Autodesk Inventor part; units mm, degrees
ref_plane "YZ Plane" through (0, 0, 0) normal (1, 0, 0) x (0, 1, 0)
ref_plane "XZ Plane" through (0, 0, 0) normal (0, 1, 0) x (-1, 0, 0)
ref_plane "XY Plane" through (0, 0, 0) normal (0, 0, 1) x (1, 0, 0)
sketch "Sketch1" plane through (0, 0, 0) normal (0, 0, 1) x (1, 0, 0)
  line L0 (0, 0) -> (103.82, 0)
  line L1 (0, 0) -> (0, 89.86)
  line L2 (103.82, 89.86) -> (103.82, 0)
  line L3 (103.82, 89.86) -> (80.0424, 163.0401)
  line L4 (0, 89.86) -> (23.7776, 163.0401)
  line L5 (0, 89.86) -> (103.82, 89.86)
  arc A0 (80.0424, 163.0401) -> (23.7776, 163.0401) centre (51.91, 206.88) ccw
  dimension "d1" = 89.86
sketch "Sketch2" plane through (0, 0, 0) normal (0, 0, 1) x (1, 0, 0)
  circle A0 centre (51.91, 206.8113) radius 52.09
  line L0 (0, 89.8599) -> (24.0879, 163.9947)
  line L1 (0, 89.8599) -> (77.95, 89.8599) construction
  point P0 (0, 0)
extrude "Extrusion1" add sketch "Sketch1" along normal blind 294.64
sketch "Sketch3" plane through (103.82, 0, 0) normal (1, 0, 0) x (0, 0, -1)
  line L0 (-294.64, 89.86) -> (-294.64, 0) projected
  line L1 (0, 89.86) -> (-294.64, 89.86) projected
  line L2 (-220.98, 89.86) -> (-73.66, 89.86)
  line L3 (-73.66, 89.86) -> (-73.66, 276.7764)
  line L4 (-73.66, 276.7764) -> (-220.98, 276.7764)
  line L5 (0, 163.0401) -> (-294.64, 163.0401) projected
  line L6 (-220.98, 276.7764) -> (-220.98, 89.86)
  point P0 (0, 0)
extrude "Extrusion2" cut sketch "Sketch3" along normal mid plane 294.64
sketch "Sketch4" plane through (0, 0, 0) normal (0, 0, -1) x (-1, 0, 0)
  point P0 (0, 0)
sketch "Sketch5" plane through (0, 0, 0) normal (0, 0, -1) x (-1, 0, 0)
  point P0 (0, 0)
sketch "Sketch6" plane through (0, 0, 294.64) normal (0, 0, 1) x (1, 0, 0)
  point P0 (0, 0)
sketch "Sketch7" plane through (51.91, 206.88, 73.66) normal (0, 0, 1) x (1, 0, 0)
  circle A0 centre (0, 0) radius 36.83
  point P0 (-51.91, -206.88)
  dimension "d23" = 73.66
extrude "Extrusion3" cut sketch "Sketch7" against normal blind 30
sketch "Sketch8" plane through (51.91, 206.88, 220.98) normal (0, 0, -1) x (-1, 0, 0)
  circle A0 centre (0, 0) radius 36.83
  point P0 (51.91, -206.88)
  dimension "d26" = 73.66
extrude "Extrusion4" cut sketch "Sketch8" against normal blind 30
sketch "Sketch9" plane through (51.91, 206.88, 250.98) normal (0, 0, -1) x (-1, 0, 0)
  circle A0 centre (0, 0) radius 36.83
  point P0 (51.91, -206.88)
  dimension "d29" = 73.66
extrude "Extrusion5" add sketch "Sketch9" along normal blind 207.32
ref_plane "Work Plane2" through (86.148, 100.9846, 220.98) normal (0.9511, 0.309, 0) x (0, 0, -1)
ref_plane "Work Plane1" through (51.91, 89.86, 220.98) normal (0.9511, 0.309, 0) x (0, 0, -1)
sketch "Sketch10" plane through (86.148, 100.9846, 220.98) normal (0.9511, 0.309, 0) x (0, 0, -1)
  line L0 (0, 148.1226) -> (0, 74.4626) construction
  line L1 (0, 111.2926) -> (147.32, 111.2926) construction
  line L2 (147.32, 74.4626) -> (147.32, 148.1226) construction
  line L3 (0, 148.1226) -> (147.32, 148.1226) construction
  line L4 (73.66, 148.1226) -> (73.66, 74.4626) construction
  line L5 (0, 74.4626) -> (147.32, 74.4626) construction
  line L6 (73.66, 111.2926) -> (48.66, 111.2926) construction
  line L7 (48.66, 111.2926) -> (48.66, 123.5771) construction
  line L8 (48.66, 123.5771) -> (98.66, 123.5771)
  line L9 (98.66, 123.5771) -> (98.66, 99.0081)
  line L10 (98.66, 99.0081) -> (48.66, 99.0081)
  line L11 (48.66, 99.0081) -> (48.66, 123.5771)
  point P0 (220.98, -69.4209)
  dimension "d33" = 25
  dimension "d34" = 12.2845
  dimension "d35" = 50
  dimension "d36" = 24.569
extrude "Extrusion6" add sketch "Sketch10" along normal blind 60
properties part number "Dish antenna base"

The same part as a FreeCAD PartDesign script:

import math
import FreeCAD as App
import Part
import Sketcher
from FreeCAD import Vector
Q = App.Units.Quantity


def add_polygon(sketch, points):
    """Adds a closed chain of lines whose ends are joined by coincident constraints."""
    first, n = sketch.GeometryCount, len(points)
    for a, b in zip(points, points[1:] + points[:1]):
        sketch.addGeometry(Part.LineSegment(App.Vector(*a, 0), App.Vector(*b, 0)), False)
    for i in range(n):
        sketch.addConstraint(Sketcher.Constraint("Coincident", first + i, 2, first + (i + 1) % n, 1))

doc = App.newDocument("Part")
body = doc.addObject("PartDesign::Body", "Body")

# Sketch on XY plane
sketch1 = body.newObject("Sketcher::SketchObject", "Sketch")
sketch1.AttachmentSupport = (doc.getObject("XY_Plane"), [""])
sketch1.MapMode = "FlatFace"
sketch1.addGeometry([
    Part.LineSegment(Vector(0, 90, 0), Vector(0, 0, 0)),  # 0
    Part.LineSegment(Vector(0, 0, 0), Vector(104, 0, 0)),  # 1
    Part.LineSegment(Vector(104, 0, 0), Vector(104, 90, 0)),  # 2
    Part.LineSegment(Vector(104, 90, 0), Vector(80, 163, 0)),  # 3
    Part.ArcOfCircle(Part.Circle(Vector(52, 207, 0), Vector(0, 0, 1), 52), math.radians(-57), math.radians(237)),  # 4
    Part.LineSegment(Vector(24, 163, 0), Vector(0, 90, 0)),  # 5
], False)
sketch1.addConstraint([
    Sketcher.Constraint("Coincident", 0, 2, 1, 1),
    Sketcher.Constraint("Coincident", 1, 2, 2, 1),
    Sketcher.Constraint("Coincident", 2, 2, 3, 1),
    Sketcher.Constraint("Coincident", 3, 2, 4, 1),
    Sketcher.Constraint("Coincident", 4, 2, 5, 1),
    Sketcher.Constraint("Coincident", 5, 2, 0, 1),
    Sketcher.Constraint("Vertical", 0),
    Sketcher.Constraint("Horizontal", 1),
    Sketcher.Constraint("Vertical", 2),
    Sketcher.Constraint("Coincident", 0, 2, -1, 1),
    Sketcher.Constraint("Horizontal", 3, 2, 4, 2),
    Sketcher.Constraint("Horizontal", 2, 2, 5, 2),
    Sketcher.Constraint("Equal", 3, 5),
    Sketcher.Constraint("DistanceY", 0, 2, 0, 1, Q("3.5378 in")),
    Sketcher.Constraint("Angle", 3, Q("108 deg")),
    Sketcher.Constraint("Radius", 4, 52.09),
    Sketcher.Constraint("DistanceX", 1, 1, 1, 2, Q("4.0874 in")),
    Sketcher.Constraint("DistanceY", -1, 1, 3, 2, Q("6.4189 in")),
])
pad1 = body.newObject("PartDesign::Pad", "Pad")
pad1.Profile = sketch1
pad1.Length = Q("11.6 in")

# Sketch on YZ plane
sketch2 = body.newObject("Sketcher::SketchObject", "Sketch001")
sketch2.AttachmentSupport = (doc.getObject("YZ_Plane"), [""])
sketch2.MapMode = "FlatFace"
sketch2.AttachmentOffset = App.Placement(Vector(0, 0, 4.0874016 * 25.4), App.Rotation())
add_polygon(sketch2, [(90, 221), (90, 74), (277, 74), (277, 221)])  # lines 0-3
sketch2.addConstraint([
    Sketcher.Constraint("Vertical", 0),
    Sketcher.Constraint("Horizontal", 1),
    Sketcher.Constraint("Vertical", 2),
    Sketcher.Constraint("Horizontal", 3),
    Sketcher.Constraint("DistanceY", 0, 2, 0, 1, Q("5.8 in")),
    Sketcher.Constraint("DistanceY", -1, 1, 0, 2, Q("2.9 in")),
    Sketcher.Constraint("DistanceX", 1, 1, 1, 2, 186.9164),
    Sketcher.Constraint("DistanceX", -1, 1, 0, 2, Q("3.5378 in")),
])
pocket1 = body.newObject("PartDesign::Pocket", "Pocket")
pocket1.Profile = sketch2
pocket1.Length = Q("11.6 in")
pocket1.Midplane = True

# Sketch on XY plane
sketch3 = body.newObject("Sketcher::SketchObject", "Sketch002")
sketch3.AttachmentSupport = (doc.getObject("XY_Plane"), [""])
sketch3.MapMode = "FlatFace"
sketch3.AttachmentOffset = App.Placement(Vector(0, 0, 2.9 * 25.4), App.Rotation())
sketch3.addGeometry(Part.Circle(Vector(52, 207, 0), Vector(0, 0, 1), 37), False)
sketch3.addConstraint([
    Sketcher.Constraint("Diameter", 0, Q("2.9 in")),
    Sketcher.Constraint("DistanceX", -1, 1, 0, 3, Q("2.0437 in")),
    Sketcher.Constraint("DistanceY", -1, 1, 0, 3, 206.88),
])
pocket2 = body.newObject("PartDesign::Pocket", "Pocket001")
pocket2.Profile = sketch3
pocket2.Length = Q("1.1811024 in")

# Sketch on XY plane
sketch4 = body.newObject("Sketcher::SketchObject", "Sketch003")
sketch4.AttachmentSupport = (doc.getObject("XY_Plane"), [""])
sketch4.MapMode = "FlatFace"
sketch4.AttachmentOffset = App.Placement(Vector(0, 0, 8.7 * 25.4), App.Rotation())
sketch4.addGeometry(Part.Circle(Vector(52, 207, 0), Vector(0, 0, 1), 37), False)
sketch4.addConstraint([
    Sketcher.Constraint("Diameter", 0, Q("2.9 in")),
    Sketcher.Constraint("DistanceX", -1, 1, 0, 3, Q("2.0437 in")),
    Sketcher.Constraint("DistanceY", -1, 1, 0, 3, 206.88),
])
pocket3 = body.newObject("PartDesign::Pocket", "Pocket002")
pocket3.Profile = sketch4
pocket3.Length = Q("1.1811024 in")
pocket3.Reversed = True

# Sketch on XY plane
sketch5 = body.newObject("Sketcher::SketchObject", "Sketch004")
sketch5.AttachmentSupport = (doc.getObject("XY_Plane"), [""])
sketch5.MapMode = "FlatFace"
sketch5.AttachmentOffset = App.Placement(Vector(0, 0, 9.8811024 * 25.4), App.Rotation())
sketch5.addGeometry(Part.Circle(Vector(52, 207, 0), Vector(0, 0, 1), 37), False)
sketch5.addConstraint([
    Sketcher.Constraint("Diameter", 0, Q("2.9 in")),
    Sketcher.Constraint("DistanceX", -1, 1, 0, 3, Q("2.0437 in")),
    Sketcher.Constraint("DistanceY", -1, 1, 0, 3, 206.88),
])
pad2 = body.newObject("PartDesign::Pad", "Pad001")
pad2.Profile = sketch5
pad2.Length = Q("8.1622047 in")
pad2.Reversed = True

# Sketch on an angled plane
sketch6 = body.newObject("Sketcher::SketchObject", "Sketch005")
sketch6.Placement = App.Placement(Vector(86.148, 100.9846, 220.98), App.Rotation(Vector(0, 0, -1), Vector(-0.309016994, 0.951056516, 0), Vector(0.951056516, 0.309016994, 0), "ZXY"))
add_polygon(sketch6, [(99, 124), (49, 124), (49, 99), (99, 99)])  # lines 0-3
sketch6.addConstraint([
    Sketcher.Constraint("Horizontal", 0),
    Sketcher.Constraint("Vertical", 1),
    Sketcher.Constraint("Horizontal", 2),
    Sketcher.Constraint("Vertical", 3),
    Sketcher.Constraint("DistanceX", 0, 2, 0, 1, Q("1.9685 in")),
    Sketcher.Constraint("DistanceY", 1, 2, 1, 1, 24.569),
    Sketcher.Constraint("DistanceX", -1, 1, 0, 2, 48.66),
    Sketcher.Constraint("DistanceY", -1, 1, 0, 2, 123.577),
])
pad3 = body.newObject("PartDesign::Pad", "Pad002")
pad3.Profile = sketch6
pad3.Length = Q("2.3622047 in")

doc.recompute()
